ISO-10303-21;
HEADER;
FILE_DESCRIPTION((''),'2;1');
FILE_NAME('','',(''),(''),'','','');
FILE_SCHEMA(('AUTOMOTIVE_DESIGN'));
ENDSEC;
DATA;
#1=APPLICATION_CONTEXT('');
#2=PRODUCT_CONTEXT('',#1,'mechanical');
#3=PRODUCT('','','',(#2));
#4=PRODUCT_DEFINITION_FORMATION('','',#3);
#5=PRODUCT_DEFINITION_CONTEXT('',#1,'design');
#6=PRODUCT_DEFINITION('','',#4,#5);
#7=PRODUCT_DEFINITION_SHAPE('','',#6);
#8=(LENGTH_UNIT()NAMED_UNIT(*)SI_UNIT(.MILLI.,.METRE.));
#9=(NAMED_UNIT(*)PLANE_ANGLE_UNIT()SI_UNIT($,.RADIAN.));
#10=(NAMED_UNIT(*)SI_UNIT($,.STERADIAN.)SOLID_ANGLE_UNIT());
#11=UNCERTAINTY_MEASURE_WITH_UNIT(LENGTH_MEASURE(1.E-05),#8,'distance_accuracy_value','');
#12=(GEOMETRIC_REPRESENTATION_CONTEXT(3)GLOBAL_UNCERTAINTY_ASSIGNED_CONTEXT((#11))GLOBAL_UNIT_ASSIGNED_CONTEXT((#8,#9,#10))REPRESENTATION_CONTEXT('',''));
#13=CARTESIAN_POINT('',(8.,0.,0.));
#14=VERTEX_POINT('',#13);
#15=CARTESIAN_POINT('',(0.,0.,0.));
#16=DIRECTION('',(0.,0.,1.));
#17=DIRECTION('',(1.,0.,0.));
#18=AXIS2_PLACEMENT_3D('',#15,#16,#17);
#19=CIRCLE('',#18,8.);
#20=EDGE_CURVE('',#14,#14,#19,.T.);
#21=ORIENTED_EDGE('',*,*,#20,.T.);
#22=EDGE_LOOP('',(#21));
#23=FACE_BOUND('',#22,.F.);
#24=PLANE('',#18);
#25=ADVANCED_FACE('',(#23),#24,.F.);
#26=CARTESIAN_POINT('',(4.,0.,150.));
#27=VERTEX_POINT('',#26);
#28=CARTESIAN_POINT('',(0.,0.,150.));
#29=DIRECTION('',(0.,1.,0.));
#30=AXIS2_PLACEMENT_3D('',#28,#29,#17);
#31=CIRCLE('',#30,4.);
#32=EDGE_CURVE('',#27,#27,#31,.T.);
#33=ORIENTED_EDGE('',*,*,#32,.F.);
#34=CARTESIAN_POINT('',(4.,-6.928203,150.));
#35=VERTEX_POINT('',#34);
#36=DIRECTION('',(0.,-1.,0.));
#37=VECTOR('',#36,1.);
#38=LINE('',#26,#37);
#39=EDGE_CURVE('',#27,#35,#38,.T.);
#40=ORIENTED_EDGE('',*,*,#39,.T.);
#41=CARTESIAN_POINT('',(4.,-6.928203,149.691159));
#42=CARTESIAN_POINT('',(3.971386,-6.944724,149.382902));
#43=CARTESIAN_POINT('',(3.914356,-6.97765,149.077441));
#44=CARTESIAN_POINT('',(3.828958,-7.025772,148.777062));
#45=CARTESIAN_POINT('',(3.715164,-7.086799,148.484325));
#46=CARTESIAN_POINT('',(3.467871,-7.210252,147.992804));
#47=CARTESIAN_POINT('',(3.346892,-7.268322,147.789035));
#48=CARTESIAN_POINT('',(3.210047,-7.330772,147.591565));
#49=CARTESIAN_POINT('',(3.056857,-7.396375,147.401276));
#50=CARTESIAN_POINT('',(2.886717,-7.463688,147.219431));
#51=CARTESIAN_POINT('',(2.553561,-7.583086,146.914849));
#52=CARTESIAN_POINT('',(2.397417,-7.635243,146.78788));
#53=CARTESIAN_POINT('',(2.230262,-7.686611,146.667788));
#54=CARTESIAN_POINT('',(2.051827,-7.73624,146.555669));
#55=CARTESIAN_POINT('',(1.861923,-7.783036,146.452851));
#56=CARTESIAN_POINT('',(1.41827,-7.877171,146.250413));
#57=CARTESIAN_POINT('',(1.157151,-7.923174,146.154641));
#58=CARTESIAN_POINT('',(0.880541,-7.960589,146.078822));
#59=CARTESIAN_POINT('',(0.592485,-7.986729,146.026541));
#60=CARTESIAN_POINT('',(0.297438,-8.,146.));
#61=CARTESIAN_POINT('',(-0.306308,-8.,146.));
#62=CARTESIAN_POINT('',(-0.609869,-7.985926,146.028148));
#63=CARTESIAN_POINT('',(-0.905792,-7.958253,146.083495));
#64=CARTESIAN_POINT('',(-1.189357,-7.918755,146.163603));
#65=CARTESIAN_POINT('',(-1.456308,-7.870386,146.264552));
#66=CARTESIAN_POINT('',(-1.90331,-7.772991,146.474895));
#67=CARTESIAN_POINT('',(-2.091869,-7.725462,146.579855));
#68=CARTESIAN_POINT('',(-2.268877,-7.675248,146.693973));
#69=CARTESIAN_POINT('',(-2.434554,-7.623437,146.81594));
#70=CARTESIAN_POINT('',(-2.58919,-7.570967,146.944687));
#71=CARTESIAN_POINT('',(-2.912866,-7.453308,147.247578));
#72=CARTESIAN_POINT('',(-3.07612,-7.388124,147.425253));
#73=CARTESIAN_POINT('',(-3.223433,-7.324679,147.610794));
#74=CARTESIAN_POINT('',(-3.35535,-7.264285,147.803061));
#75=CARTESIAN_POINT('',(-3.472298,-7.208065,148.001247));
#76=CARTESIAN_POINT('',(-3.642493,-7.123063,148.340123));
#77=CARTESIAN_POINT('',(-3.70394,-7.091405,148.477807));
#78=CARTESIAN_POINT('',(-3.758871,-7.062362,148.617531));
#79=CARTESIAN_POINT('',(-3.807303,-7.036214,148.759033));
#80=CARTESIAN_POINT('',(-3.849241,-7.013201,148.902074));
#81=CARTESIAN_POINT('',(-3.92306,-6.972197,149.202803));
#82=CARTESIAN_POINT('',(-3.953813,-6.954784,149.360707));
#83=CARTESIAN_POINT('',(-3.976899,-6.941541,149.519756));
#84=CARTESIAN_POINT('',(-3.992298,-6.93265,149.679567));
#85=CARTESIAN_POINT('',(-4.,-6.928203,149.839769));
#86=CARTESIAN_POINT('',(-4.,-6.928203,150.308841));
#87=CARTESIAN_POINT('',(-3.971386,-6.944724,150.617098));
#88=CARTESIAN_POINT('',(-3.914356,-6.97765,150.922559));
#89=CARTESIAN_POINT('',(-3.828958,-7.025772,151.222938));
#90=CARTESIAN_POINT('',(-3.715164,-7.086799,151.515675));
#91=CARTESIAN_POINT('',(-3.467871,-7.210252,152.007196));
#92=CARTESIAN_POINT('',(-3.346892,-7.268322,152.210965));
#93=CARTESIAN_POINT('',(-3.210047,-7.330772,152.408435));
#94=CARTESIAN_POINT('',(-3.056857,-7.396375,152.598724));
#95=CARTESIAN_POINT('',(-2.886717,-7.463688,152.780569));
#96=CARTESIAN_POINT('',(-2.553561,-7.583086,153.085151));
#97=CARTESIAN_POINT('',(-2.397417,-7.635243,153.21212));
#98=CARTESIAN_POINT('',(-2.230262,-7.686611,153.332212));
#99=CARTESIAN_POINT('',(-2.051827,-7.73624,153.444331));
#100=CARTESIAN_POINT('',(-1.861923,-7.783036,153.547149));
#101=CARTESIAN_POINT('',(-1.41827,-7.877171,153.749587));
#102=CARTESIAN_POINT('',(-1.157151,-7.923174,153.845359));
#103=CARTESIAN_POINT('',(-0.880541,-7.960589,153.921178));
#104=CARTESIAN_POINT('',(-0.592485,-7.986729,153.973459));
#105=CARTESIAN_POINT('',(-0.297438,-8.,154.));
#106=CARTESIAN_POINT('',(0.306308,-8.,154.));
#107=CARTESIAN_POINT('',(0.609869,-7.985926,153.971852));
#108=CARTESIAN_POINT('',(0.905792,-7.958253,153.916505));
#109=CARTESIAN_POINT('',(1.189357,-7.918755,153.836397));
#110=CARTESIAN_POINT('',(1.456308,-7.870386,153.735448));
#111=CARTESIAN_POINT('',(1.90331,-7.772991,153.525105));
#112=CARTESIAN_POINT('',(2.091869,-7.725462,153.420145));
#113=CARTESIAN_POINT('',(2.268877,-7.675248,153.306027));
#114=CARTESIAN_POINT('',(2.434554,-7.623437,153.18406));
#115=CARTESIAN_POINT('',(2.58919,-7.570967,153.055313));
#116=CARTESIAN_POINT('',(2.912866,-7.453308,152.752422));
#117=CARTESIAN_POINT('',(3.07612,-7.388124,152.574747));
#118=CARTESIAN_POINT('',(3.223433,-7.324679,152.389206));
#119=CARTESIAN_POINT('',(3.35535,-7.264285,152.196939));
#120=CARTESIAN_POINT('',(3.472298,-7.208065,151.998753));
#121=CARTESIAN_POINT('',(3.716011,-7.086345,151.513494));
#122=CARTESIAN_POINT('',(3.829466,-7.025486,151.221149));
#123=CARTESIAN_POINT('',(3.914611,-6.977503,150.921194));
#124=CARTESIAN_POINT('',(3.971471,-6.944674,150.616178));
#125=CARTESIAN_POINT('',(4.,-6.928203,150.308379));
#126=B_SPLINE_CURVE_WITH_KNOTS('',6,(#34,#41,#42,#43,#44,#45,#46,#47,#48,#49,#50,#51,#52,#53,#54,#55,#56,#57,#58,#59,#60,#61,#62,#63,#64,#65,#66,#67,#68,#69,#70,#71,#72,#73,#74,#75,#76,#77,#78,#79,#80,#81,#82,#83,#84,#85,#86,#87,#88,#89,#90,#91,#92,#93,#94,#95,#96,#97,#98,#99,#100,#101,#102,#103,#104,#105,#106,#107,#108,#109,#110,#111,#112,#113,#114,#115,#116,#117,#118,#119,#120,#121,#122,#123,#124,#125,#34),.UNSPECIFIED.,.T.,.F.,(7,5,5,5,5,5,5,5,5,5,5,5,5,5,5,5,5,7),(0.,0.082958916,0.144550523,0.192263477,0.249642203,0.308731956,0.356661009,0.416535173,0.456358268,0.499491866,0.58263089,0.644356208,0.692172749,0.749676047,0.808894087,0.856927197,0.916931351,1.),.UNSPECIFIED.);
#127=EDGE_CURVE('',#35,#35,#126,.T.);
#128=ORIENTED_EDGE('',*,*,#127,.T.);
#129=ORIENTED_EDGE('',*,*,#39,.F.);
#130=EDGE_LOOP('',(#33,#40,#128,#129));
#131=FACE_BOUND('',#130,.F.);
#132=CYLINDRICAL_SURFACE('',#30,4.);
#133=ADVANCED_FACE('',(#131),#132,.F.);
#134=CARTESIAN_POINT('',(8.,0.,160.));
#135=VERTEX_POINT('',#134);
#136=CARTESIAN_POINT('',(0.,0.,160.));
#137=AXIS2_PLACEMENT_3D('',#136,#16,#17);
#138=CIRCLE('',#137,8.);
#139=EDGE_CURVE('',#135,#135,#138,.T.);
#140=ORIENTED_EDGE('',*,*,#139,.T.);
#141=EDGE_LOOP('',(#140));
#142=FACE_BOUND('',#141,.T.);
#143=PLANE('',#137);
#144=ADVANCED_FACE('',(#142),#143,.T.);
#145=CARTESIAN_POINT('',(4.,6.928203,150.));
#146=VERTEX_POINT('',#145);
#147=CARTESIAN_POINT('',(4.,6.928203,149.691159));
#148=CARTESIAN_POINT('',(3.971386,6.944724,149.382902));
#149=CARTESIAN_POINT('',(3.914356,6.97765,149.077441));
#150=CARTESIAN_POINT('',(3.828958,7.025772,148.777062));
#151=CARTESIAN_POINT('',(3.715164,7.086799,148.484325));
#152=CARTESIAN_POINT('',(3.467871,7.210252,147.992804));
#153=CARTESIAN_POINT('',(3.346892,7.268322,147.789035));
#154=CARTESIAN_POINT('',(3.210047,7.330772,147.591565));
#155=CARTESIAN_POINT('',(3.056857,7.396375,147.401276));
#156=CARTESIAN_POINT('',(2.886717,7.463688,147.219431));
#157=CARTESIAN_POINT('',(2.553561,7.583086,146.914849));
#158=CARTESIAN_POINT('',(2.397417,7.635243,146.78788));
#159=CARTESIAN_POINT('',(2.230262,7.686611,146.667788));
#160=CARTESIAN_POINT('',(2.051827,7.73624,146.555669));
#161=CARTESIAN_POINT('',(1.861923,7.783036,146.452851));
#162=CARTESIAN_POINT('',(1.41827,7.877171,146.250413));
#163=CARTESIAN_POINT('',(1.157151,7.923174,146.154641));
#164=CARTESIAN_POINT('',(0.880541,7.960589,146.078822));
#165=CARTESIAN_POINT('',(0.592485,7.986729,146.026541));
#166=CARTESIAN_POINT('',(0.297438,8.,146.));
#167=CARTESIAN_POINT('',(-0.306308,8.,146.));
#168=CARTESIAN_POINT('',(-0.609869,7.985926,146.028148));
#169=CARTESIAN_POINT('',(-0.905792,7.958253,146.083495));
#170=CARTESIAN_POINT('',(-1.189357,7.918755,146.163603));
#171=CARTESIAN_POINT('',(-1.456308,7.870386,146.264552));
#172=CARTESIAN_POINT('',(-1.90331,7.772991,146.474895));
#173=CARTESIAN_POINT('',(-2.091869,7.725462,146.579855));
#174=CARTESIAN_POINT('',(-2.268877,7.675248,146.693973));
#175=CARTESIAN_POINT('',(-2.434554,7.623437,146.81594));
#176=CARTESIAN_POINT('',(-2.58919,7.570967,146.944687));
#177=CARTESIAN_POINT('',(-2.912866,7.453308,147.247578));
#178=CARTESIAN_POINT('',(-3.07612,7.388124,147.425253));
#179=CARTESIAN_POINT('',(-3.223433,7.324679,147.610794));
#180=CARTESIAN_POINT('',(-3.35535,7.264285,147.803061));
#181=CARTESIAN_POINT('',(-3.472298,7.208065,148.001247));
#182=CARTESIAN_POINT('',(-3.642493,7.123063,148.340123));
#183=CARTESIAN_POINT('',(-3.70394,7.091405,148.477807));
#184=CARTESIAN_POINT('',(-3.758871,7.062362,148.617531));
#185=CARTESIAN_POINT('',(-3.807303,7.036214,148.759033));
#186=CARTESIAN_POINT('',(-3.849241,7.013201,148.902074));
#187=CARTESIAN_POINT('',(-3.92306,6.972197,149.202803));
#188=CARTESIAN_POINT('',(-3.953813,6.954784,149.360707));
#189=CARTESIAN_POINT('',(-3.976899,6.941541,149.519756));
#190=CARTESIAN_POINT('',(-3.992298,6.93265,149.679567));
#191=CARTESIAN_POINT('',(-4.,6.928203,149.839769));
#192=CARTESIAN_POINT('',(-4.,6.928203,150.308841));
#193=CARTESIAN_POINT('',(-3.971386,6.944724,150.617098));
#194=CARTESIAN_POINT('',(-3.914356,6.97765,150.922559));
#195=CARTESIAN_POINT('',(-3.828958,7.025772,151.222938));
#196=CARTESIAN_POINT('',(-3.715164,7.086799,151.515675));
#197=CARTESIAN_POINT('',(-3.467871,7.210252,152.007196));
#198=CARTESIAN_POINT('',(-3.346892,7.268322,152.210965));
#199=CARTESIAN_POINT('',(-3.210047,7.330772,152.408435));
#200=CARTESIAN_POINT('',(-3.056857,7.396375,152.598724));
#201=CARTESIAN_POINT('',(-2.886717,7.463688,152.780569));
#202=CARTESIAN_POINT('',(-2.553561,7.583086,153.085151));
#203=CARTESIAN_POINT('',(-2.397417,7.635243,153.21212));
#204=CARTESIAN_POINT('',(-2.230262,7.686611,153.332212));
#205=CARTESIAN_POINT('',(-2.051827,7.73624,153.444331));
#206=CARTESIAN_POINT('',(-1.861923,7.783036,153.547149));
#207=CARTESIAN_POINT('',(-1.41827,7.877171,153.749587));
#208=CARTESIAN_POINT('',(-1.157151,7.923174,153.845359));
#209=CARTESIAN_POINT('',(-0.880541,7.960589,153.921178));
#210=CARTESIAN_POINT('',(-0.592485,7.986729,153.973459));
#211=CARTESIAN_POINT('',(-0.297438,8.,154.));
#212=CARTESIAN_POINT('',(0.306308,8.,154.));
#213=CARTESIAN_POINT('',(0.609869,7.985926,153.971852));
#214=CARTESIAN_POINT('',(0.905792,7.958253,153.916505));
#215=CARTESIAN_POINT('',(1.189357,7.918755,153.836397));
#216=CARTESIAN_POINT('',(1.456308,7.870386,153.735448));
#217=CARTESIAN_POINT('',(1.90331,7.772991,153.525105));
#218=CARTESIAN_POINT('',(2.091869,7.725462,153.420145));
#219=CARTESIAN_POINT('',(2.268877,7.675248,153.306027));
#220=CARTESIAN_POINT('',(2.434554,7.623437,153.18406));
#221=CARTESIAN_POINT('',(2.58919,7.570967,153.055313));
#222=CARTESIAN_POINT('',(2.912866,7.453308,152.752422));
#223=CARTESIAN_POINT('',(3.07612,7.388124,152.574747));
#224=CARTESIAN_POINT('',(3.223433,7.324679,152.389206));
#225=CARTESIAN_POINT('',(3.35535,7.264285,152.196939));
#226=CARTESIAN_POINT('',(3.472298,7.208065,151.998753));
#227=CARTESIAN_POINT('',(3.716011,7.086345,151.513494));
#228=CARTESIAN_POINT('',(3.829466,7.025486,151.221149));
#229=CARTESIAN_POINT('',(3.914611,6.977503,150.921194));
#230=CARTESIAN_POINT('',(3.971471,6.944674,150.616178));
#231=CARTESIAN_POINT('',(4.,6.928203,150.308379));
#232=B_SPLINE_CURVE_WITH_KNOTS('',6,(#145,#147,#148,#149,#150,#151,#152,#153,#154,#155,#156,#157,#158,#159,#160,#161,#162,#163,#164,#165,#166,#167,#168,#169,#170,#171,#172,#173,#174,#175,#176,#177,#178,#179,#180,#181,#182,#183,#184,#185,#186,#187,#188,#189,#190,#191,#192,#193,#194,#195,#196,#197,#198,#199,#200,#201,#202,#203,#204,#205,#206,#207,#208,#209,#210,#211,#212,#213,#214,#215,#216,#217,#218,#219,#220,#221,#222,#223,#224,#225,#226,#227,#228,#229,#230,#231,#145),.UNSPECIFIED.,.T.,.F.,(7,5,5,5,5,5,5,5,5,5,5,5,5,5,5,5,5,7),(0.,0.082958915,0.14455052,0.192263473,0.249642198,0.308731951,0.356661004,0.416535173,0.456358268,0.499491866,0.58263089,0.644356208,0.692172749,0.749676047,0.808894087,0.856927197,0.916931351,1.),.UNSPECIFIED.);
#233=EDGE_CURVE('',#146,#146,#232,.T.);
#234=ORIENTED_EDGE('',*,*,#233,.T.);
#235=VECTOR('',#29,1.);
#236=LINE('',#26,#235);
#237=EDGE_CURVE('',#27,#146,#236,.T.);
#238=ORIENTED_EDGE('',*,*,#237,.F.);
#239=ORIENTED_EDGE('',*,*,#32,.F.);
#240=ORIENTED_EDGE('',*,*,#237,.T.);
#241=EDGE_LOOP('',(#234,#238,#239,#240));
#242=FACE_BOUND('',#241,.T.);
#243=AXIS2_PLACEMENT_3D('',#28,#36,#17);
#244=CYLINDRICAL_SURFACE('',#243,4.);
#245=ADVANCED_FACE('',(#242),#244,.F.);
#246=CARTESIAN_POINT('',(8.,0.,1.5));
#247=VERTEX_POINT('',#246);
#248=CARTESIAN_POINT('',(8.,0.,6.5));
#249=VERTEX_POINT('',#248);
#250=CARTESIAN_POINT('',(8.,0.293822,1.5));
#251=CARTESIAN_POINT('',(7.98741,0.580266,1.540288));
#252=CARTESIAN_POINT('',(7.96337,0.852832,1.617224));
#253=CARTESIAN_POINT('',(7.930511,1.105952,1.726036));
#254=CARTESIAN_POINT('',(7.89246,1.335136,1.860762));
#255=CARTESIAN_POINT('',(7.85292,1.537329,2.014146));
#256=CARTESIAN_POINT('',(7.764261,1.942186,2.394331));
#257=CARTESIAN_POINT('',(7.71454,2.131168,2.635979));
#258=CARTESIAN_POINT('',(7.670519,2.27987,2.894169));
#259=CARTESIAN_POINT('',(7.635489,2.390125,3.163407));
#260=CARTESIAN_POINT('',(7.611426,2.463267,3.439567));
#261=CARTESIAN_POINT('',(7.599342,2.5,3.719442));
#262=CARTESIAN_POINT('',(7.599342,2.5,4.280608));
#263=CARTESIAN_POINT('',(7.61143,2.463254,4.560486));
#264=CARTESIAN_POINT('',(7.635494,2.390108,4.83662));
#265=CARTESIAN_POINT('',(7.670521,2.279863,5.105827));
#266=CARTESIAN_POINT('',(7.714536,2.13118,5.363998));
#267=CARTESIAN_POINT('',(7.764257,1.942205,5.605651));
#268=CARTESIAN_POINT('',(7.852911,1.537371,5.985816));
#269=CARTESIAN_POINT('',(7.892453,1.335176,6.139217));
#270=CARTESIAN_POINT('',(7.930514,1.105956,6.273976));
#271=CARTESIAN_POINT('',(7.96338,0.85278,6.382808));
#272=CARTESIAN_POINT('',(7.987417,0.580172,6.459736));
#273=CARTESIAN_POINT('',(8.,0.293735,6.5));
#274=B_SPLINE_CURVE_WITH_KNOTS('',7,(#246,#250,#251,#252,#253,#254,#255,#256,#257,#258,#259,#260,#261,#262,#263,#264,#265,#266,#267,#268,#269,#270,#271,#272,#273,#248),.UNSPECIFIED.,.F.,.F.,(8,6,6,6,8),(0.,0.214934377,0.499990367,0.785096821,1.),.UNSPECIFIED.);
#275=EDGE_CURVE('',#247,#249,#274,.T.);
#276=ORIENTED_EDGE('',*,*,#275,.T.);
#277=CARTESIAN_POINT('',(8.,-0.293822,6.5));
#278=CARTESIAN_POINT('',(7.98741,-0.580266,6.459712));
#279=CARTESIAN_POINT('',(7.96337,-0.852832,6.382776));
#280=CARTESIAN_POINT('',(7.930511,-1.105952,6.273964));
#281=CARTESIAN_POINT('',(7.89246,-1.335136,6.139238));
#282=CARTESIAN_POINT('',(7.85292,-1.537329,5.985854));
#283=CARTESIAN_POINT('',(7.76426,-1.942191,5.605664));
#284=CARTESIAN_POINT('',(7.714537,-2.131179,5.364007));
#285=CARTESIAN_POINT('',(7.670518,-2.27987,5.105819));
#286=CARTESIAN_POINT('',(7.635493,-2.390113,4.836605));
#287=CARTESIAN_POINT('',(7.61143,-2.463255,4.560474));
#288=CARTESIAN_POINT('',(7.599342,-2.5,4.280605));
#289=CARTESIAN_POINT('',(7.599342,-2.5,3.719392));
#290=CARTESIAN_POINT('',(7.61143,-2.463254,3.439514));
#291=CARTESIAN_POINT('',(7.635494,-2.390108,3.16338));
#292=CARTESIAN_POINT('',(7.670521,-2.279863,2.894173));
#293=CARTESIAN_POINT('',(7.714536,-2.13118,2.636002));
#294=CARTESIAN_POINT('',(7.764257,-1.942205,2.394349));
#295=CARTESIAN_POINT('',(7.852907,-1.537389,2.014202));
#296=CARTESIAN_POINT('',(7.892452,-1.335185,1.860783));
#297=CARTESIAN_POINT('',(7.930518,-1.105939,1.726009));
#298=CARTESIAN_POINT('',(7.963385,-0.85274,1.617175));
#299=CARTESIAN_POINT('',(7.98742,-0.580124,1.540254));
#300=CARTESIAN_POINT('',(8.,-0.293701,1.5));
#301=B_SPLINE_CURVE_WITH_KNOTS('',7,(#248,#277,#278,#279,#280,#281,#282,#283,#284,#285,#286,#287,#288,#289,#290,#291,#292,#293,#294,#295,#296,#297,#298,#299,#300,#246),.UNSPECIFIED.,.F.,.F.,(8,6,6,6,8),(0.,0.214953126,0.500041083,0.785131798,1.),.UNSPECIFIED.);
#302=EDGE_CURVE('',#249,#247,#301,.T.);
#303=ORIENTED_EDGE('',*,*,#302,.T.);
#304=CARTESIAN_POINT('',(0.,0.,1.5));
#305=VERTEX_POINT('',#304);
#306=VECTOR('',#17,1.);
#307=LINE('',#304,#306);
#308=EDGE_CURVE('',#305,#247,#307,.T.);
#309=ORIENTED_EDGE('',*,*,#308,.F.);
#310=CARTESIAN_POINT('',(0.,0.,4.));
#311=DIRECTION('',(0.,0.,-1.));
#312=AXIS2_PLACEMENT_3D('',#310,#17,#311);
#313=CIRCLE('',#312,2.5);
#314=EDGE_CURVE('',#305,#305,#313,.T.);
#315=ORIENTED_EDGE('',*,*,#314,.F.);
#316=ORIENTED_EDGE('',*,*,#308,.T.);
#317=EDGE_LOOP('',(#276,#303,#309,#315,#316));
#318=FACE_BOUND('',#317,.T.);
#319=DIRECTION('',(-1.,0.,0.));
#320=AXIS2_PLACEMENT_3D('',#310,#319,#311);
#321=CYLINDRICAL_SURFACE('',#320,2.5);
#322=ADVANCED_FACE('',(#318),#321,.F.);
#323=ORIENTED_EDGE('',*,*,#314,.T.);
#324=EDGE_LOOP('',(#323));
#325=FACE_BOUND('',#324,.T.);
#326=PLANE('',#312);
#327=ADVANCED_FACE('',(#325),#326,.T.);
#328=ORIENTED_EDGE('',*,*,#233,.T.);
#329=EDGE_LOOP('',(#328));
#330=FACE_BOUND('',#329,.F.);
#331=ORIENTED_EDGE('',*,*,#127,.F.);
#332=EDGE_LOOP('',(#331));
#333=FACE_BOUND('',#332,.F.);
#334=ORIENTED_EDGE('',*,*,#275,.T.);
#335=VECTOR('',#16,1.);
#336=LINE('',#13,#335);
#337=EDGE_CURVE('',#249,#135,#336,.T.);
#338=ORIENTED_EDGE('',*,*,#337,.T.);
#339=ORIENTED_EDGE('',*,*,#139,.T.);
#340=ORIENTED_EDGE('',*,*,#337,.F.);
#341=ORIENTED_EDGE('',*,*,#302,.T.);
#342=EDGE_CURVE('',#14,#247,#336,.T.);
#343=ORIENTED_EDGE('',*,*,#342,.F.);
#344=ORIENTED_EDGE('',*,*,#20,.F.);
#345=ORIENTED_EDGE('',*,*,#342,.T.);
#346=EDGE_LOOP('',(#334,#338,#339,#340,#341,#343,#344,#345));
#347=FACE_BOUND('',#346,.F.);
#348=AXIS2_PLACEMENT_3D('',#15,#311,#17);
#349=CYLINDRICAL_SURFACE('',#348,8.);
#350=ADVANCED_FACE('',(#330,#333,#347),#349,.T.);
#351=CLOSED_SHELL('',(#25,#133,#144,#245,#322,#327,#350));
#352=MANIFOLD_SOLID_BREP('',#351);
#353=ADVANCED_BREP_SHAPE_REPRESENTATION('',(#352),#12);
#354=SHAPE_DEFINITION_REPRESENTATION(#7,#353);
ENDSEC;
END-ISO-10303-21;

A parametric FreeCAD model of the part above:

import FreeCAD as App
import Part
import Sketcher

doc = App.newDocument("Part")
body = doc.addObject("PartDesign::Body", "Body")

# Sketch on XY plane
sketch1 = doc.addObject("Sketcher::SketchObject", "Sketch")
body.addObject(sketch1)
sketch1.AttachmentSupport = (doc.XY_Plane, [""])
sketch1.MapMode = "FlatFace"
sketch1.addGeometry(Part.Circle(App.Vector(0, 0, 0), App.Vector(0, 0, 1), 8), False)
sketch1.addConstraint(Sketcher.Constraint("Coincident", 0, 3, -1, 1))
sketch1.addConstraint(Sketcher.Constraint("Diameter", 0, 16.0))
pad1 = doc.addObject("PartDesign::Pad", "Pad")
body.addObject(pad1)
pad1.Profile = sketch1
pad1.Length = 160

# Sketch on XZ plane
sketch2 = doc.addObject("Sketcher::SketchObject", "Sketch001")
body.addObject(sketch2)
sketch2.AttachmentSupport = (doc.XZ_Plane, [""])
sketch2.MapMode = "FlatFace"
sketch2.addGeometry(Part.Circle(App.Vector(0, 150, 0), App.Vector(0, 0, 1), 4), False)
sketch2.addConstraint(Sketcher.Constraint("PointOnObject", 0, 3, -2))
sketch2.addConstraint(Sketcher.Constraint("Diameter", 0, 8.0))
sketch2.addConstraint(Sketcher.Constraint("DistanceY", -1, 1, 0, 3, 150.0))
pocket1 = doc.addObject("PartDesign::Pocket", "Pocket")
body.addObject(pocket1)
pocket1.Profile = sketch2
pocket1.Type = "ThroughAll"
pocket1.Midplane = True

# Sketch on YZ plane
sketch3 = doc.addObject("Sketcher::SketchObject", "Sketch002")
body.addObject(sketch3)
sketch3.AttachmentSupport = (doc.YZ_Plane, [""])
sketch3.MapMode = "FlatFace"
sketch3.addGeometry(Part.Circle(App.Vector(0, 4, 0), App.Vector(0, 0, 1), 2.5), False)
sketch3.addConstraint(Sketcher.Constraint("PointOnObject", 0, 3, -2))
sketch3.addConstraint(Sketcher.Constraint("Diameter", 0, 5.0))
sketch3.addConstraint(Sketcher.Constraint("DistanceY", -1, 1, 0, 3, 4.0))
pocket2 = doc.addObject("PartDesign::Pocket", "Pocket001")
body.addObject(pocket2)
pocket2.Profile = sketch3
pocket2.Length = 10
pocket2.Reversed = True

doc.recompute()
